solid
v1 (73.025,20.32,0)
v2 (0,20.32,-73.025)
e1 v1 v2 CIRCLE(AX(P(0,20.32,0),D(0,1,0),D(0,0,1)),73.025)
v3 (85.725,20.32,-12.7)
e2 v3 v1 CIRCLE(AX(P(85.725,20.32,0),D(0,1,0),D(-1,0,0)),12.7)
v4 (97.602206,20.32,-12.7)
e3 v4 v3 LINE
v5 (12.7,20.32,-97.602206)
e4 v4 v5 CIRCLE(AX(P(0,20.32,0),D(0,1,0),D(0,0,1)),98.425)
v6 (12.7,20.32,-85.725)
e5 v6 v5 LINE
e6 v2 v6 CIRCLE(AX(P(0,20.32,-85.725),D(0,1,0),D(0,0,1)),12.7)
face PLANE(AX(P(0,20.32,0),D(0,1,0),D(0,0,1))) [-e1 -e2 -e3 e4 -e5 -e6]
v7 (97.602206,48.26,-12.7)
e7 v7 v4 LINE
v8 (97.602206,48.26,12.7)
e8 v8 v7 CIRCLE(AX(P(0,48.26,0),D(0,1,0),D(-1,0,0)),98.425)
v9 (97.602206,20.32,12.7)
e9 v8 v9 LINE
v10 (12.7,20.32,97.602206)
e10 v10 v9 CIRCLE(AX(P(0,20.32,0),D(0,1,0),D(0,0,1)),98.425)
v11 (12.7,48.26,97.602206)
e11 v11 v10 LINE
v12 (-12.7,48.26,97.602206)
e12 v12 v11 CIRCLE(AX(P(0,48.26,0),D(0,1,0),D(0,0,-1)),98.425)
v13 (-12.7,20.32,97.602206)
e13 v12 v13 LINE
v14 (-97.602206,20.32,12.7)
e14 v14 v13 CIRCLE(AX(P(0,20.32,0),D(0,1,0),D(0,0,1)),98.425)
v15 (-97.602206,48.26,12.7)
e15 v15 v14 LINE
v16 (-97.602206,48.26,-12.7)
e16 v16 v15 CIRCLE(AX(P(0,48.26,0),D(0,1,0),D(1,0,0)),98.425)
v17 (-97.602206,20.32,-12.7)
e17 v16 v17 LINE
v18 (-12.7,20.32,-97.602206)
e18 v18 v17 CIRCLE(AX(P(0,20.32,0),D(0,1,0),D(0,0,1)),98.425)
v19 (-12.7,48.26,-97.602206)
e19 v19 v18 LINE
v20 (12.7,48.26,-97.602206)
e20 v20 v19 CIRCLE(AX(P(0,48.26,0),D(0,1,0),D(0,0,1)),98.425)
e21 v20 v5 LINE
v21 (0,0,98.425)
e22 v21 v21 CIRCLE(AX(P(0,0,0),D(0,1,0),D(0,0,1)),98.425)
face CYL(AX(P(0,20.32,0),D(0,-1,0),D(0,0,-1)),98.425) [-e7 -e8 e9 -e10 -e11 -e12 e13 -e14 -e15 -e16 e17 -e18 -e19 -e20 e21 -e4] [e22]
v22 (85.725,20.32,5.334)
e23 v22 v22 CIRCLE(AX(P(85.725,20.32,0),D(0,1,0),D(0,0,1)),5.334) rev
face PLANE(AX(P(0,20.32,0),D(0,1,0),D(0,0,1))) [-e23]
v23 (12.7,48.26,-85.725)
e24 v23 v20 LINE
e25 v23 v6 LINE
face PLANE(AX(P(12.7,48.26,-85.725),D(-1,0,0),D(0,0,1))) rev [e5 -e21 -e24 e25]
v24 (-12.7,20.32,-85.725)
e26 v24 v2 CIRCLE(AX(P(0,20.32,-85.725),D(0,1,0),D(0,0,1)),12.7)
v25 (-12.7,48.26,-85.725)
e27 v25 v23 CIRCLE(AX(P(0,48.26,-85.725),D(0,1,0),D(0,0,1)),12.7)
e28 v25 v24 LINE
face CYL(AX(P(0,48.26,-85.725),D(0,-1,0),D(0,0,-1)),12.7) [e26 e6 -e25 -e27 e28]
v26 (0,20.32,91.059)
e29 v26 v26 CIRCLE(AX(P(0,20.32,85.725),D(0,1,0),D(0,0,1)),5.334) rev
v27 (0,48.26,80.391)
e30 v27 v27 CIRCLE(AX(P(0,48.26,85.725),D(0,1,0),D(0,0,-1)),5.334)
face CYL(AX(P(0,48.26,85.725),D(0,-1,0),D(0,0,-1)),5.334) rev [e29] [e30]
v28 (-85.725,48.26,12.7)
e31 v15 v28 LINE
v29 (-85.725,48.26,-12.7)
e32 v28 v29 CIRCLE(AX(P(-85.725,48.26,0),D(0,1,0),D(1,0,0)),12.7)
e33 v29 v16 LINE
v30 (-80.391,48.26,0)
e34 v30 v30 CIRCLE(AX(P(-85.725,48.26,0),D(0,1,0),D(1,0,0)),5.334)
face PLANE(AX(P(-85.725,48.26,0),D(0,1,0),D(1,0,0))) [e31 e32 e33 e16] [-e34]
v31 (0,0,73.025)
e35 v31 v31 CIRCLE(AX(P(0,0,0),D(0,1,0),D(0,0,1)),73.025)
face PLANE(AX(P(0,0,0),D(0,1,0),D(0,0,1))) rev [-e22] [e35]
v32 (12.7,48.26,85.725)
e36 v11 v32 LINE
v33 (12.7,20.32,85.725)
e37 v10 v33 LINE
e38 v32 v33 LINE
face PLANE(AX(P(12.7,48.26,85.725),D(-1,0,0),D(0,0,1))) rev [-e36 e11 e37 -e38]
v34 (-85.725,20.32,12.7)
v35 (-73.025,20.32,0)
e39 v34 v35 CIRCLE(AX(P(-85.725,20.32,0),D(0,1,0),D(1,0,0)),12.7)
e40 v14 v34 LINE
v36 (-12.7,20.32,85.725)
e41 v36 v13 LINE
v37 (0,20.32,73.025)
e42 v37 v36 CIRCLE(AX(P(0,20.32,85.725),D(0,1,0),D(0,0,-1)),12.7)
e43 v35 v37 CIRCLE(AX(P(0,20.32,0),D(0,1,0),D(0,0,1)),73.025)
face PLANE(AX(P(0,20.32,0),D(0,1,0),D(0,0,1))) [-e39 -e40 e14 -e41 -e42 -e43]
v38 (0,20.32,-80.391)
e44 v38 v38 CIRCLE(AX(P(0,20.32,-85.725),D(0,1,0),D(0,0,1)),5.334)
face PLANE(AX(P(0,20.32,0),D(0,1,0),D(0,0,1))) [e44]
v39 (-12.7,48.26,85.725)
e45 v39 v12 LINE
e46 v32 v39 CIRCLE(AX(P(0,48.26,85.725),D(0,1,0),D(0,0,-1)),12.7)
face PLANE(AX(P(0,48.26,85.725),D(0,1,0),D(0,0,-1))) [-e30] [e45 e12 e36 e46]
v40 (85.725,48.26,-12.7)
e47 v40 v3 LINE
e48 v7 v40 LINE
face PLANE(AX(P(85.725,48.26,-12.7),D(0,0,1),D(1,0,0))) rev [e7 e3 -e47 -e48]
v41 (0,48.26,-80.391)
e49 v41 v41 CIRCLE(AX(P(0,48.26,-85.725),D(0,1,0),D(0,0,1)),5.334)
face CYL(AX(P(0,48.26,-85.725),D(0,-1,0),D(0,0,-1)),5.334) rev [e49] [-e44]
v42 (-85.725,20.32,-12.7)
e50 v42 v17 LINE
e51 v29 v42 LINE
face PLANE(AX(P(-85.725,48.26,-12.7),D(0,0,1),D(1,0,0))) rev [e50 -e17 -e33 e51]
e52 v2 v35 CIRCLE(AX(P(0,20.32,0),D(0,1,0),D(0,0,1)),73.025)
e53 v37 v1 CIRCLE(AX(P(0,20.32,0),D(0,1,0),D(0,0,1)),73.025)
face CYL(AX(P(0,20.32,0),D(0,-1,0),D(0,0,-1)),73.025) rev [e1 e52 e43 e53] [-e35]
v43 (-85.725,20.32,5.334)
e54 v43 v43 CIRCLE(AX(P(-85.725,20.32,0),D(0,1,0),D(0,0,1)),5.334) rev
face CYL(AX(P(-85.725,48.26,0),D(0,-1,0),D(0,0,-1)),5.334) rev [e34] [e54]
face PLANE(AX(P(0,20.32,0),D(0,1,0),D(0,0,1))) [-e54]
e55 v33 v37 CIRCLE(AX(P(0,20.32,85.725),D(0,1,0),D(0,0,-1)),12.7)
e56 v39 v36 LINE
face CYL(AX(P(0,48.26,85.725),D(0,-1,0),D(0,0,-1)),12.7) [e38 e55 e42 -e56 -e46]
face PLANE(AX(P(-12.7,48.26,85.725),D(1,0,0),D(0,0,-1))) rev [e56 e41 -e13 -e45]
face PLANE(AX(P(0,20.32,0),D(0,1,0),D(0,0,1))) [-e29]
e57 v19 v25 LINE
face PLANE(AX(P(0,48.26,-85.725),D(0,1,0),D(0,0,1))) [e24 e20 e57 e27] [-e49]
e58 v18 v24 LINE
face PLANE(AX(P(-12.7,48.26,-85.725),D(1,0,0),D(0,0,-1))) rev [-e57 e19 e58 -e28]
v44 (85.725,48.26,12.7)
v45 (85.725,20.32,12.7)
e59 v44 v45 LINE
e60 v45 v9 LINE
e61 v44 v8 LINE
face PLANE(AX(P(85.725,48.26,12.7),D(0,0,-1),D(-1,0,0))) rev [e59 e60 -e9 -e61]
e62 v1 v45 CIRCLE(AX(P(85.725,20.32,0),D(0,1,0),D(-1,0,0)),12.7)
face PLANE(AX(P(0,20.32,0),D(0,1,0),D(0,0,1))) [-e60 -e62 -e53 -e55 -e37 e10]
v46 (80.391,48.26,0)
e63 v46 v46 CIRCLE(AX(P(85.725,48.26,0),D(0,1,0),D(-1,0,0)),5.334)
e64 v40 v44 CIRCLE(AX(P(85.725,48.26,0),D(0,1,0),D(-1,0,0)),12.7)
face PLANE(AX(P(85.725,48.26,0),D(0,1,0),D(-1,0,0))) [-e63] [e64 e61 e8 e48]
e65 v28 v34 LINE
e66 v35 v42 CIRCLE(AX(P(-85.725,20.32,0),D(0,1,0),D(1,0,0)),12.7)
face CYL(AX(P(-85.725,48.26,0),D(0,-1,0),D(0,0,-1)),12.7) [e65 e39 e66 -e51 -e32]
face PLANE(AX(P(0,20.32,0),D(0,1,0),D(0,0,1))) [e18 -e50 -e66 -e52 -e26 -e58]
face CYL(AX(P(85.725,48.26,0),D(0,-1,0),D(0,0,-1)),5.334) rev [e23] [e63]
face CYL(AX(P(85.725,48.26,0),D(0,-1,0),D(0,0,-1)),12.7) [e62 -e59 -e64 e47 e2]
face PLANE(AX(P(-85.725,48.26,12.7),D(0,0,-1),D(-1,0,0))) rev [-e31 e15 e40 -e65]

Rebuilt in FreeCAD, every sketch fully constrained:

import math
import FreeCAD as App
import Part
import Sketcher
from FreeCAD import Vector
Q = App.Units.Quantity

doc = App.newDocument("Part")
params = doc.addObject("Spreadsheet::Sheet", "Params")
for row, (alias, value) in enumerate([
    ("sketch1_diameter", "7.75 in"),
    ("sketch1_diameter2", "5.75 in"),
    ("pad1_length", "0.8 in"),
    ("sketch2_radius", "0.5 in"),
    ("sketch2_diameter", "0.42 in"),
    ("sketch2_radius2", "3.875 in"),
    ("pad2_length", "1.1 in"),
], start=1):
    params.set(f"A{row}", alias)
    params.set(f"B{row}", "=" + value)
    params.setAlias(f"B{row}", alias)

body = doc.addObject("PartDesign::Body", "Body")

# Sketch on XZ plane
sketch1 = doc.addObject("Sketcher::SketchObject", "Sketch")
body.addObject(sketch1)
sketch1.AttachmentSupport = (doc.XZ_Plane, [""])
sketch1.MapMode = "FlatFace"
sketch1.addGeometry([
    Part.Circle(Vector(0, 0, 0), Vector(0, 0, 1), 98),
    Part.Circle(Vector(0, 0, 0), Vector(0, 0, 1), 73),
], False)
sketch1.addConstraint([
    Sketcher.Constraint("Coincident", 0, 3, -1, 1),
    Sketcher.Constraint("Coincident", 1, 3, -1, 1),
    Sketcher.Constraint("Diameter", 0, Q("7.75 in")),
    Sketcher.Constraint("Diameter", 1, Q("5.75 in")),
])
sketch1.setExpression("Constraints[2]", "Params.sketch1_diameter")
sketch1.setExpression("Constraints[3]", "Params.sketch1_diameter2")
pad1 = doc.addObject("PartDesign::Pad", "Pad")
body.addObject(pad1)
pad1.Profile = sketch1
pad1.setExpression("Length", "Params.pad1_length")
pad1.Reversed = True

# Sketch on XZ plane
sketch2 = doc.addObject("Sketcher::SketchObject", "Sketch001")
body.addObject(sketch2)
sketch2.AttachmentSupport = (doc.XZ_Plane, [""])
sketch2.MapMode = "FlatFace"
sketch2.AttachmentOffset = App.Placement(Vector(0, 0, -0.8 * 25.4), App.Rotation())
sketch2.addGeometry([
    Part.LineSegment(Vector(-13, -98, 0), Vector(-13, -86, 0)),  # 0
    Part.ArcOfCircle(Part.Circle(Vector(0, -86, 0), Vector(0, 0, 1), 13), math.radians(0), math.radians(180)),  # 1
    Part.LineSegment(Vector(13, -86, 0), Vector(13, -98, 0)),  # 2
    Part.ArcOfCircle(Part.Circle(Vector(0, 0, 0), Vector(0, 0, 1), 98), math.radians(-97.41), math.radians(-82.59)),  # 3
    Part.Circle(Vector(0, -86, 0), Vector(0, 0, 1), 5),  # 4
], False)
sketch2.addConstraint([
    Sketcher.Constraint("Tangent", 0, 2, 1, 2),
    Sketcher.Constraint("Tangent", 1, 1, 2, 1),
    Sketcher.Constraint("Coincident", 2, 2, 3, 2),
    Sketcher.Constraint("Coincident", 3, 1, 0, 1),
    Sketcher.Constraint("Vertical", 0),
    Sketcher.Constraint("Vertical", 2),
    Sketcher.Constraint("Coincident", 3, 3, -1, 1),
    Sketcher.Constraint("Coincident", 4, 3, 1, 3),
    Sketcher.Constraint("PointOnObject", 1, 3, -2),
    Sketcher.Constraint("Radius", 1, Q("0.5 in")),
    Sketcher.Constraint("Diameter", 4, Q("0.42 in")),
    Sketcher.Constraint("Radius", 3, Q("3.875 in")),
    Sketcher.Constraint("DistanceY", 1, 3, -1, 1, Q("3.375 in")),
])
sketch2.setExpression("Constraints[9]", "Params.sketch2_radius")
sketch2.setExpression("Constraints[10]", "Params.sketch2_diameter")
sketch2.setExpression("Constraints[11]", "Params.sketch2_radius2")
pad2 = doc.addObject("PartDesign::Pad", "Pad001")
body.addObject(pad2)
pad2.Profile = sketch2
pad2.setExpression("Length", "Params.pad2_length")
pad2.Reversed = True
doc.recompute()

polarpattern = doc.addObject("PartDesign::PolarPattern", "PolarPattern")
body.addObject(polarpattern)
polarpattern.Originals = [pad2]
polarpattern.Axis = (doc.Y_Axis, [""])
polarpattern.Angle = 360
polarpattern.Occurrences = 4
body.Tip = polarpattern

doc.recompute()
